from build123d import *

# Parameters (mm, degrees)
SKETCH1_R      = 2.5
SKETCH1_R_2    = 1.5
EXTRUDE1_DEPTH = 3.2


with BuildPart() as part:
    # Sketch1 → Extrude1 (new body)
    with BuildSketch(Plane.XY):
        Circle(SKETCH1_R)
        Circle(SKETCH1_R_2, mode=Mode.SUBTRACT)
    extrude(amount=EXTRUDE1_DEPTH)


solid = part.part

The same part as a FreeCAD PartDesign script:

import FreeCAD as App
import Part
import Sketcher
Q = App.Units.Quantity

doc = App.newDocument("Part")
body = doc.addObject("PartDesign::Body", "Body")

# Sketch on XY plane
sketch1 = body.newObject("Sketcher::SketchObject", "Sketch")
sketch1.AttachmentSupport = (doc.getObject("XY_Plane"), [""])
sketch1.MapMode = "FlatFace"
sketch1.addGeometry([
    Part.Circle(App.Vector(0, 0, 0), App.Vector(0, 0, 1), 2.5),
    Part.Circle(App.Vector(0, 0, 0), App.Vector(0, 0, 1), 1.5),
], False)
sketch1.addConstraint([
    Sketcher.Constraint("Coincident", 0, 3, -1, 1),
    Sketcher.Constraint("Coincident", 1, 3, -1, 1),
    Sketcher.Constraint("Diameter", 0, Q("5 mm")),
    Sketcher.Constraint("Diameter", 1, Q("3 mm")),
])
pad1 = body.newObject("PartDesign::Pad", "Pad")
pad1.Profile = sketch1
pad1.Length = 3.2

doc.recompute()
